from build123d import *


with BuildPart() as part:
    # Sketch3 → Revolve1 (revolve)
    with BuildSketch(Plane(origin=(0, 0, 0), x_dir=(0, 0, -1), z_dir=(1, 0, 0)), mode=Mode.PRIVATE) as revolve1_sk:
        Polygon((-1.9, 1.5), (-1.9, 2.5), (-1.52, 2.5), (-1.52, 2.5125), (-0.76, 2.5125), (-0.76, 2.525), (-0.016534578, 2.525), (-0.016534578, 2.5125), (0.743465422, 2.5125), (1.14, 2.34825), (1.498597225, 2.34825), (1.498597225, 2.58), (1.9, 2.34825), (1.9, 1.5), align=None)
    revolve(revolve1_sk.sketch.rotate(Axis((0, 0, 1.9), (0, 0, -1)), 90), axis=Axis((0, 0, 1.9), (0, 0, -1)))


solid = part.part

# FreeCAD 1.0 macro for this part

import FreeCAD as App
import Part
import Sketcher
from FreeCAD import Vector
Q = App.Units.Quantity


def add_polygon(sketch, points):
    """Adds a closed chain of lines whose ends are joined by coincident constraints."""
    first, n = sketch.GeometryCount, len(points)
    for a, b in zip(points, points[1:] + points[:1]):
        sketch.addGeometry(Part.LineSegment(App.Vector(*a, 0), App.Vector(*b, 0)), False)
    for i in range(n):
        sketch.addConstraint(Sketcher.Constraint("Coincident", first + i, 2, first + (i + 1) % n, 1))

doc = App.newDocument("Part")
body = doc.addObject("PartDesign::Body", "Body")

# Sketch on YZ plane
sketch1 = body.newObject("Sketcher::SketchObject", "Sketch")
sketch1.AttachmentSupport = (doc.getObject("YZ_Plane"), [""])
sketch1.MapMode = "FlatFace"
add_polygon(sketch1, [(2.5, 1.9), (1.5, 1.9), (1.5, -1.9), (2.34825, -1.9), (2.58, -1.498597), (2.34825, -1.498597), (2.34825, -1.14), (2.5125, -0.743465), (2.5125, 0.016535), (2.525, 0.016535), (2.525, 0.76), (2.5125, 0.76), (2.5125, 1.52), (2.5, 1.52)])  # lines 0-13
sketch1.addConstraint(Sketcher.Constraint("Horizontal", 0))
sketch1.addConstraint(Sketcher.Constraint("Vertical", 1))
sketch1.addConstraint(Sketcher.Constraint("Horizontal", 2))
sketch1.addConstraint(Sketcher.Constraint("Horizontal", 4))
sketch1.addConstraint(Sketcher.Constraint("Vertical", 5))
sketch1.addConstraint(Sketcher.Constraint("Vertical", 7))
sketch1.addConstraint(Sketcher.Constraint("Horizontal", 8))
sketch1.addConstraint(Sketcher.Constraint("Vertical", 9))
sketch1.addConstraint(Sketcher.Constraint("Horizontal", 10))
sketch1.addConstraint(Sketcher.Constraint("Vertical", 11))
sketch1.addConstraint(Sketcher.Constraint("Horizontal", 12))
sketch1.addConstraint(Sketcher.Constraint("Vertical", 13))
sketch1.addConstraint(Sketcher.Constraint("Vertical", 2, 2, 4, 2))
sketch1.addConstraint(Sketcher.Constraint("Vertical", 7, 2, 10, 2))
sketch1.addConstraint(Sketcher.Constraint("Equal", 10, 12))
sketch1.addConstraint(Sketcher.Constraint("Equal", 7, 11))
sketch1.addConstraint(Sketcher.Constraint("DistanceX", 0, 2, 0, 1, Q("1 mm")))
sketch1.addConstraint(Sketcher.Constraint("Angle", 3, Q("60 deg")))
sketch1.addConstraint(Sketcher.Constraint("DistanceY", 1, 2, 1, 1, Q("3.8 mm")))
sketch1.addConstraint(Sketcher.Constraint("Angle", 6, Q("67.5 deg")))
sketch1.addConstraint(Sketcher.Constraint("DistanceY", 7, 1, 7, 2, Q("0.76 mm")))
sketch1.addConstraint(Sketcher.Constraint("DistanceY", 13, 1, 13, 2, Q("0.38 mm")))
sketch1.addConstraint(Sketcher.Constraint("DistanceX", -1, 1, 0, 2, Q("1.5 mm")))
sketch1.addConstraint(Sketcher.Constraint("DistanceY", -1, 1, 0, 2, Q("1.9 mm")))
sketch1.addConstraint(Sketcher.Constraint("DistanceY", 5, 2, 9, 2, Q("1.9 mm")))
sketch1.addConstraint(Sketcher.Constraint("DistanceX", -1, 1, 3, 2, Q("2.58 mm")))
sketch1.addConstraint(Sketcher.Constraint("DistanceX", 8, 1, 8, 2, Q("0.0125 mm")))
sketch1.addConstraint(Sketcher.Constraint("Distance", 3, Q("0.4635 mm")))
revolution = body.newObject("PartDesign::Revolution", "Revolution")
revolution.Profile = sketch1
revolution.ReferenceAxis = (sketch1, ["V_Axis"])
revolution.Angle = 360

doc.recompute()
